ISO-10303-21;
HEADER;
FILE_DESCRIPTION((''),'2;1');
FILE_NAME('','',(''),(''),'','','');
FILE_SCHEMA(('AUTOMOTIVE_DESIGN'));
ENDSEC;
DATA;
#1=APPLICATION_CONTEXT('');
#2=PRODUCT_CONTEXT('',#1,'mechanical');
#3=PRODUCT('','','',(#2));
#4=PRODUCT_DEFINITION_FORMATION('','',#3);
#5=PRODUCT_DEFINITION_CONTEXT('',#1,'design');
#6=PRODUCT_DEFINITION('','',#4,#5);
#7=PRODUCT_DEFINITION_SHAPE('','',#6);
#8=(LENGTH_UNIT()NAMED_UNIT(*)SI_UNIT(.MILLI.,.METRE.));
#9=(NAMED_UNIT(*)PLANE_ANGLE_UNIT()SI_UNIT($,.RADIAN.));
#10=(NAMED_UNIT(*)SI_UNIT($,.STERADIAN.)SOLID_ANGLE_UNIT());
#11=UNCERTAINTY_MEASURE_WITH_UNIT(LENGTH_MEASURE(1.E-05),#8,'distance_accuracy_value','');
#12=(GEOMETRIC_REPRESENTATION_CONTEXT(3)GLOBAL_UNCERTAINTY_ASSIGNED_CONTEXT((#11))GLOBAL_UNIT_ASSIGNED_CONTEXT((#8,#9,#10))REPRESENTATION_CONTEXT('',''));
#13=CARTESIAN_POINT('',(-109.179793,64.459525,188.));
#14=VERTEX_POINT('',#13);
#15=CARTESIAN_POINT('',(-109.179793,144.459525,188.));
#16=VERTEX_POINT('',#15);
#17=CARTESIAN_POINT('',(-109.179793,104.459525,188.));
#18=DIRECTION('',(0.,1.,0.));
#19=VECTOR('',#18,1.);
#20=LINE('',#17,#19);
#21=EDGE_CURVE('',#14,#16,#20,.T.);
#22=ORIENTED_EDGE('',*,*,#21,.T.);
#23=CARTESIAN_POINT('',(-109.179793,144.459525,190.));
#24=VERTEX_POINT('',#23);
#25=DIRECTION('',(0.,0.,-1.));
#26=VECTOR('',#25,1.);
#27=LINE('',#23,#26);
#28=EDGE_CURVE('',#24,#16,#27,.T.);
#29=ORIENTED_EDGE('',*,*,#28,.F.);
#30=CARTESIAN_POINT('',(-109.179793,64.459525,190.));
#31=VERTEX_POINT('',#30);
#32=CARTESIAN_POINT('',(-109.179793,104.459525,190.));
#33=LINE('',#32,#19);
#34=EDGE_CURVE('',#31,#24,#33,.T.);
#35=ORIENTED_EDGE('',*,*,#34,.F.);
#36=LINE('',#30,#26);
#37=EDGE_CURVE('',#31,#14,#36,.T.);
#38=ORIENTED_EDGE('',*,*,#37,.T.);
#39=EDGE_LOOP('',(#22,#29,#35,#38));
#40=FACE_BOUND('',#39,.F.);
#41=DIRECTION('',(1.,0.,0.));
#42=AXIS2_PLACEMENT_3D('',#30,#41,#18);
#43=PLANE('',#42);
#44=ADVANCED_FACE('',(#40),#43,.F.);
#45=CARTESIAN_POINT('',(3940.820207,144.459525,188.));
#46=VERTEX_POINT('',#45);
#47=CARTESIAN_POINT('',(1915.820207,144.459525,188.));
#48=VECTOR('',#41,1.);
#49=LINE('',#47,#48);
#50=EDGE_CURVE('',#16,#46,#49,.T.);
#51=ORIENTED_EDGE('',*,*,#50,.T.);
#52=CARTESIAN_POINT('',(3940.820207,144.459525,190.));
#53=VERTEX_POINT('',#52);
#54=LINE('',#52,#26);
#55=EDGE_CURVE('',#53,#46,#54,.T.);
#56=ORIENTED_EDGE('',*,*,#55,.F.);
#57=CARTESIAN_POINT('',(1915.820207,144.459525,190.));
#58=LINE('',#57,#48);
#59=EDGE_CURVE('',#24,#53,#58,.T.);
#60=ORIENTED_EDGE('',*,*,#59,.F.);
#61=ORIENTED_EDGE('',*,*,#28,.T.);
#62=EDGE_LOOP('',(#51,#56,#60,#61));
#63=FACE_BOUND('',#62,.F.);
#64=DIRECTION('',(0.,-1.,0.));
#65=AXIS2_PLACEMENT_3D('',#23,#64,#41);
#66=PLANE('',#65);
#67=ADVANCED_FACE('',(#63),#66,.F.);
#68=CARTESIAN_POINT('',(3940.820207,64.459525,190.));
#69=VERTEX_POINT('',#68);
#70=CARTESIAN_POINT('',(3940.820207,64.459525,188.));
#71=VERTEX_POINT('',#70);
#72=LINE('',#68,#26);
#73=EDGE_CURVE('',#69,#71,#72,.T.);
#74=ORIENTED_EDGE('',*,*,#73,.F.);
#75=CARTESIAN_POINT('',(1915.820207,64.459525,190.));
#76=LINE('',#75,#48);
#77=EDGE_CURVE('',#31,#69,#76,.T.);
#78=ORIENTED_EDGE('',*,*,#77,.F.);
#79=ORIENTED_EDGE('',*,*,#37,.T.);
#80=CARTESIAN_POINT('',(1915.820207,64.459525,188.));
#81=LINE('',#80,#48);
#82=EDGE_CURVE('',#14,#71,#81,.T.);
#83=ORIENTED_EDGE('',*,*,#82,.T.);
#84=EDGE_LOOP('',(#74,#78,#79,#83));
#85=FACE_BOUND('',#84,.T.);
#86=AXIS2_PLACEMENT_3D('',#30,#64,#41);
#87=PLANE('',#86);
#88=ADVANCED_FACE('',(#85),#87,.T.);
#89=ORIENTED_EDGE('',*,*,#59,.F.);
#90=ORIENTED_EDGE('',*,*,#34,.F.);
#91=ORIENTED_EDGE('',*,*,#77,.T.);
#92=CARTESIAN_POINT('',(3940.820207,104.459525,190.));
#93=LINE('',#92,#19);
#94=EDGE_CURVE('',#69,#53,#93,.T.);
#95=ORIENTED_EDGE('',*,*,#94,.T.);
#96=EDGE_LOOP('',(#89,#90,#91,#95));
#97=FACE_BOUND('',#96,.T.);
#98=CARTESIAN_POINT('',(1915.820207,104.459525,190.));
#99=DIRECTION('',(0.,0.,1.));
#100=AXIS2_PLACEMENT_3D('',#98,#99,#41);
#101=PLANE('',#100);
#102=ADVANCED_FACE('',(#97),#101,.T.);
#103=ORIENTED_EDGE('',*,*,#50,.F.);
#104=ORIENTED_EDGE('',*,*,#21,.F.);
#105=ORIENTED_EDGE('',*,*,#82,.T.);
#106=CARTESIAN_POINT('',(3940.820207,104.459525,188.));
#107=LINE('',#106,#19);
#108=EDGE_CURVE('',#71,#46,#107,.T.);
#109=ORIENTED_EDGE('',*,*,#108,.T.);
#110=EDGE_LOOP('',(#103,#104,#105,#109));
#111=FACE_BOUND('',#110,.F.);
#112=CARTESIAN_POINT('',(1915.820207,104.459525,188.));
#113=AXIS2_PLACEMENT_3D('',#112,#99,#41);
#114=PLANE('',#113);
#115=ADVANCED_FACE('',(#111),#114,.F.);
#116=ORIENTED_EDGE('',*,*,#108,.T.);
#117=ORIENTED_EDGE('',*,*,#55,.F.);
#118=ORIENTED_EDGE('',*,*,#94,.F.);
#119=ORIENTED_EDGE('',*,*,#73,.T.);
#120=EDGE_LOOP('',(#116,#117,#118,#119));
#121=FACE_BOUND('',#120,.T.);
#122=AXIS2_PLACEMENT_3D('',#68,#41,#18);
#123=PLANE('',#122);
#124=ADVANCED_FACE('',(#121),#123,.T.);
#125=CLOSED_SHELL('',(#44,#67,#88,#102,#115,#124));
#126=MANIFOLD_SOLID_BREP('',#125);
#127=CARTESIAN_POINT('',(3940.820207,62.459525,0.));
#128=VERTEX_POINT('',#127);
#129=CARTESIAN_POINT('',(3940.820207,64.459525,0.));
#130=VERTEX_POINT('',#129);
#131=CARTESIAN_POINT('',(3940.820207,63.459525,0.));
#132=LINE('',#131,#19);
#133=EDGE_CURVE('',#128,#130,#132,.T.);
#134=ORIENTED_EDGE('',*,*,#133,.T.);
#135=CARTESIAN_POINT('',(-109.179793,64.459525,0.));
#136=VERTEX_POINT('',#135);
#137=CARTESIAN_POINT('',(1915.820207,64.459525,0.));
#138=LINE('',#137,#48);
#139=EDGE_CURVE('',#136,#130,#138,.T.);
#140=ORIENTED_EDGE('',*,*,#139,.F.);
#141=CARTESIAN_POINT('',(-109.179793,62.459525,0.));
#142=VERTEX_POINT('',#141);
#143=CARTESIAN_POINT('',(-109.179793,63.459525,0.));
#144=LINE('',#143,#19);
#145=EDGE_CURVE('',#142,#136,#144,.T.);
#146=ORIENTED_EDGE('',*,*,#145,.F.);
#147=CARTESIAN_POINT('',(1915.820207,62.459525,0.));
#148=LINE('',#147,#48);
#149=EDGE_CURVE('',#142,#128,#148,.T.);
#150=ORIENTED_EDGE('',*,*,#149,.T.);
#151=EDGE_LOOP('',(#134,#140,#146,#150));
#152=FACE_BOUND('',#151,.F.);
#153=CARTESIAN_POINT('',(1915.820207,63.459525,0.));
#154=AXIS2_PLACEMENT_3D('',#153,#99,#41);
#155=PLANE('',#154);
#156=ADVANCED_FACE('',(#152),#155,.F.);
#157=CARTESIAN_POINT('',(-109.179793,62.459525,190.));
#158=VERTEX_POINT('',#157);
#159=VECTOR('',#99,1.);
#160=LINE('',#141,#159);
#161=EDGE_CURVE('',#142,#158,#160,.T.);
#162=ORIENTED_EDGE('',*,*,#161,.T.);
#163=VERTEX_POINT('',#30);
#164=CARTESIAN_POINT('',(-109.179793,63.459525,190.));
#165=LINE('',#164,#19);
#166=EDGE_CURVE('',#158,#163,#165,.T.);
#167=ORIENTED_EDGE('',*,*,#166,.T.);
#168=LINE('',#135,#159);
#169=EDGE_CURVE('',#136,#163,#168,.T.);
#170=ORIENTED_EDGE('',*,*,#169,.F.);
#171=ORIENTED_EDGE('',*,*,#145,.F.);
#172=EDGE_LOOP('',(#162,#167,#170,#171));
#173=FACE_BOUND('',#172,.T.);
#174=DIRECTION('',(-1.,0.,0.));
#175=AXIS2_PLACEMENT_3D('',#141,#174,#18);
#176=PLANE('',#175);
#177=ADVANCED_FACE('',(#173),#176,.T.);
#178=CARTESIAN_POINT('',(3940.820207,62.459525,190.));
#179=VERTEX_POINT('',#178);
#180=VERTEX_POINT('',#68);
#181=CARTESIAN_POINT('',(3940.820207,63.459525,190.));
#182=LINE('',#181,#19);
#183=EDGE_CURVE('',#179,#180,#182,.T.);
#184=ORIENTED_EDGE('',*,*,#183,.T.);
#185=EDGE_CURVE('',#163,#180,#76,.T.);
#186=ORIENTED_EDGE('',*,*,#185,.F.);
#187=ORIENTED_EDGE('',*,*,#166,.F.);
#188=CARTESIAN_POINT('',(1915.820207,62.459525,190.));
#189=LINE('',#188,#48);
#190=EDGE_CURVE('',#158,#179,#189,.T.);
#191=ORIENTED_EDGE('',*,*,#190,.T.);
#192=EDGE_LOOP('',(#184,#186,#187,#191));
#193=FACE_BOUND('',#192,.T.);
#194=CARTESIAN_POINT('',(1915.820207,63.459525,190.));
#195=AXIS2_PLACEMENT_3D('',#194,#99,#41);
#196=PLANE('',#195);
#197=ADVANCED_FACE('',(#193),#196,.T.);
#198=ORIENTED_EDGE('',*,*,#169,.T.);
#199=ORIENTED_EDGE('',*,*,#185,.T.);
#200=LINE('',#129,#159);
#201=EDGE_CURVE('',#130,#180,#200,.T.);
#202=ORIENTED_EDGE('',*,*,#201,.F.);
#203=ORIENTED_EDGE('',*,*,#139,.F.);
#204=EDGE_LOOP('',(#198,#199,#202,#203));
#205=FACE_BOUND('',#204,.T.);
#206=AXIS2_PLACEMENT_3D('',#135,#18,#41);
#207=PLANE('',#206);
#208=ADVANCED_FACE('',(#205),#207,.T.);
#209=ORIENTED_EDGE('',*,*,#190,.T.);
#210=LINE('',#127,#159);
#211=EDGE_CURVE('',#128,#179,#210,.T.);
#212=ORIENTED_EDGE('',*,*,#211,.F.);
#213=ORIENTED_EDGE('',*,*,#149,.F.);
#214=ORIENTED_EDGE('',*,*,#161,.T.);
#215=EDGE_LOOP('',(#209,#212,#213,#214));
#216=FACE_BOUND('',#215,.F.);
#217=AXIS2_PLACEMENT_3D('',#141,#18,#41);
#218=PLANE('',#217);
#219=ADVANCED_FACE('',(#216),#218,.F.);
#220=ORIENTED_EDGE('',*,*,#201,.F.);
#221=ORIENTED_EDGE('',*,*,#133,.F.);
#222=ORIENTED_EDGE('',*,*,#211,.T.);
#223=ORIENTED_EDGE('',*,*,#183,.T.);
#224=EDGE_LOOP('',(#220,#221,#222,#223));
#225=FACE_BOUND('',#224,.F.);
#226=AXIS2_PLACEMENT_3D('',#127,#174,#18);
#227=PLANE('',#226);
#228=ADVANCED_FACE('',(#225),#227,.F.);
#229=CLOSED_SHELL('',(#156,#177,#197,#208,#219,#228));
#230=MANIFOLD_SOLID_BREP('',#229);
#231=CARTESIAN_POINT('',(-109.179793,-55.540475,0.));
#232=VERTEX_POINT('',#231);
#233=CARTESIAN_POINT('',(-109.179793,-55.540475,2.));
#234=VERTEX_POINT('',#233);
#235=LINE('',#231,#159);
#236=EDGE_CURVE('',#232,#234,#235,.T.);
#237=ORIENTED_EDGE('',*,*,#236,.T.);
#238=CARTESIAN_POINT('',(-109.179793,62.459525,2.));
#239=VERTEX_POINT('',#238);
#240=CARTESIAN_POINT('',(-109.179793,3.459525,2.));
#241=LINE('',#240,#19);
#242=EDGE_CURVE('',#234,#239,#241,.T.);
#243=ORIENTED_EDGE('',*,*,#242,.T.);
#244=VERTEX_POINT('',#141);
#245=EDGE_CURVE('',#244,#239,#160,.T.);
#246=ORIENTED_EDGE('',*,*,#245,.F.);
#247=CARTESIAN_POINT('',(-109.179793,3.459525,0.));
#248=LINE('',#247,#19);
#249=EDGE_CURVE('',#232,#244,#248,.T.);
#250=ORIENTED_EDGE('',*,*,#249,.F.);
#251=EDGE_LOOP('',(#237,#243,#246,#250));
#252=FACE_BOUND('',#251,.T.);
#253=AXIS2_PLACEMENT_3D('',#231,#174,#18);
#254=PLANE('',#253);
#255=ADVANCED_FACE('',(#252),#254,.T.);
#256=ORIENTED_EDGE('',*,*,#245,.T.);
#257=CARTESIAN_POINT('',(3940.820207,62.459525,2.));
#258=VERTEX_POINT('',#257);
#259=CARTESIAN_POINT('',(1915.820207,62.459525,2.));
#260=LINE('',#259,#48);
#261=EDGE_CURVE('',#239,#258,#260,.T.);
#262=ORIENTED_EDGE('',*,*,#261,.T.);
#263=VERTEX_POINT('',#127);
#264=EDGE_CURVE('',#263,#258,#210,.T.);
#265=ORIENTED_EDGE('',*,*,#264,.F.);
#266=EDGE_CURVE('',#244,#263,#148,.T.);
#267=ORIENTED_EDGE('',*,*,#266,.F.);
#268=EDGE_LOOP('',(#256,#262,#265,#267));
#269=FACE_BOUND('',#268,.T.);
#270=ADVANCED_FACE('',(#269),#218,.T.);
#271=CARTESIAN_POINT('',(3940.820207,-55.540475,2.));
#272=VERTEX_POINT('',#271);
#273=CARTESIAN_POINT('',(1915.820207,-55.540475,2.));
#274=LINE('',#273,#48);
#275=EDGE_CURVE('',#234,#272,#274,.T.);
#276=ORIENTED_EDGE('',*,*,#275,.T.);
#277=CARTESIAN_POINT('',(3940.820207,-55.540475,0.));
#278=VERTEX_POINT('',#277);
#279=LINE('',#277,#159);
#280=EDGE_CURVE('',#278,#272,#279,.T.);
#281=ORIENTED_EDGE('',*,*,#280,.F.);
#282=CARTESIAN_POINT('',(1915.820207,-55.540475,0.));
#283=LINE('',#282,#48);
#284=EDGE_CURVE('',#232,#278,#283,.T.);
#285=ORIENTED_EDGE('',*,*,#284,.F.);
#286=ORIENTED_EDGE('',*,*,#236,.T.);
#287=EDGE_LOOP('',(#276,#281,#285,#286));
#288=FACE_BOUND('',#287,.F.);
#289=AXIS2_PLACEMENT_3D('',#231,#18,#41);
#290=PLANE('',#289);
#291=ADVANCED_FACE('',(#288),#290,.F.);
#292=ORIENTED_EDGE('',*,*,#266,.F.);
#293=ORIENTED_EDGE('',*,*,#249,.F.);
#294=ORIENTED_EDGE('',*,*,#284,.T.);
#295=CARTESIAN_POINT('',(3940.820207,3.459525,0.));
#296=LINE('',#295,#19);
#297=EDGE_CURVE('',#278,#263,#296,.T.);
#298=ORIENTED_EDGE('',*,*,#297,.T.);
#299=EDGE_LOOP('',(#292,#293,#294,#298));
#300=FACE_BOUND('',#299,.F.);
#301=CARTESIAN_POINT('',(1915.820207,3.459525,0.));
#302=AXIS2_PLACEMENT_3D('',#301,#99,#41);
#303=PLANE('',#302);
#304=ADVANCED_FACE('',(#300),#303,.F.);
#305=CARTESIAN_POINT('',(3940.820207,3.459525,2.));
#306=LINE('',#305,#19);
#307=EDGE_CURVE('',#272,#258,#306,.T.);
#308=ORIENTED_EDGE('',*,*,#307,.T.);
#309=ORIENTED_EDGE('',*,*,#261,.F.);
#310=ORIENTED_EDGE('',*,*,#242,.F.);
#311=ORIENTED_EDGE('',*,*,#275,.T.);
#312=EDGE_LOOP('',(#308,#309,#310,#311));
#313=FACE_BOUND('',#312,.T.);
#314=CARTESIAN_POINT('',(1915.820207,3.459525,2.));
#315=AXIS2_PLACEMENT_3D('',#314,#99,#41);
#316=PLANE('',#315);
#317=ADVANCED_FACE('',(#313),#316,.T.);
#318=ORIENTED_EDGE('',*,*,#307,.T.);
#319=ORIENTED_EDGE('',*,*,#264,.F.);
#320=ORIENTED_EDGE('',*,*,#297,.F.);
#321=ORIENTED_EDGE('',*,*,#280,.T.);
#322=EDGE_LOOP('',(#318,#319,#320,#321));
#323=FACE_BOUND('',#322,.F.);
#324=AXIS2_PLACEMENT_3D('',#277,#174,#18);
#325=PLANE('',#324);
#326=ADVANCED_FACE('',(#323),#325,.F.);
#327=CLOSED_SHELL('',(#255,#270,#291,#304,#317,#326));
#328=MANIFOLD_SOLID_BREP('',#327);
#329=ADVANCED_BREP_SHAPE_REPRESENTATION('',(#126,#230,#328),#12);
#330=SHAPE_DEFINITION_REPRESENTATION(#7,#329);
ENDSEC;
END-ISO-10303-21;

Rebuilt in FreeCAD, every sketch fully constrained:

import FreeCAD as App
import Part
import Sketcher


def add_polygon(sketch, points):
    """Adds a closed chain of lines whose ends are joined by coincident constraints."""
    first, n = sketch.GeometryCount, len(points)
    for a, b in zip(points, points[1:] + points[:1]):
        sketch.addGeometry(Part.LineSegment(App.Vector(*a, 0), App.Vector(*b, 0)), False)
    for i in range(n):
        sketch.addConstraint(Sketcher.Constraint("Coincident", first + i, 2, first + (i + 1) % n, 1))

doc = App.newDocument("Part")
body = doc.addObject("PartDesign::Body", "Body")

# Sketch on XY plane
sketch1 = doc.addObject("Sketcher::SketchObject", "Sketch")
body.addObject(sketch1)
sketch1.AttachmentSupport = (doc.XY_Plane, [""])
sketch1.MapMode = "FlatFace"
add_polygon(sketch1, [(-109, 62), (-109, -56), (3941, -56), (3941, 62)])  # lines 0-3
sketch1.addConstraint([
    Sketcher.Constraint("Vertical", 0),
    Sketcher.Constraint("Horizontal", 1),
    Sketcher.Constraint("Vertical", 2),
    Sketcher.Constraint("Horizontal", 3),
    Sketcher.Constraint("DistanceX", 1, 1, 1, 2, 4050.0),
    Sketcher.Constraint("DistanceY", 0, 2, 0, 1, 118.0),
    Sketcher.Constraint("DistanceX", 0, 2, -1, 1, 109.179793),
    Sketcher.Constraint("DistanceY", 0, 2, -1, 1, 55.540475),
])
pad1 = doc.addObject("PartDesign::Pad", "Pad")
body.addObject(pad1)
pad1.Profile = sketch1
pad1.Length = 2
body2 = doc.addObject("PartDesign::Body", "Body001")

# Sketch on XY plane
sketch2 = doc.addObject("Sketcher::SketchObject", "Sketch001")
body2.addObject(sketch2)
sketch2.AttachmentSupport = (doc.getObject("XY_Plane001"), [""])
sketch2.MapMode = "FlatFace"
add_polygon(sketch2, [(-109.2, 64.5), (-109.2, 62.5), (3940.8, 62.5), (3940.8, 64.5)])  # lines 0-3
sketch2.addConstraint([
    Sketcher.Constraint("Vertical", 0),
    Sketcher.Constraint("Horizontal", 1),
    Sketcher.Constraint("Vertical", 2),
    Sketcher.Constraint("Horizontal", 3),
    Sketcher.Constraint("DistanceX", 1, 1, 1, 2, 4050.0),
    Sketcher.Constraint("DistanceY", 0, 2, 0, 1, 2.0),
    Sketcher.Constraint("DistanceX", 0, 2, -1, 1, 109.179793),
    Sketcher.Constraint("DistanceY", -1, 1, 0, 2, 62.459525),
])
pad2 = doc.addObject("PartDesign::Pad", "Pad001")
body2.addObject(pad2)
pad2.Profile = sketch2
pad2.Length = 190
body3 = doc.addObject("PartDesign::Body", "Body002")

# Sketch on XY plane
sketch3 = doc.addObject("Sketcher::SketchObject", "Sketch002")
body3.addObject(sketch3)
sketch3.AttachmentSupport = (doc.getObject("XY_Plane002"), [""])
sketch3.MapMode = "FlatFace"
sketch3.AttachmentOffset = App.Placement(App.Vector(0, 0, 190), App.Rotation())
add_polygon(sketch3, [(-109, 144), (-109, 64), (3941, 64), (3941, 144)])  # lines 0-3
sketch3.addConstraint([
    Sketcher.Constraint("Vertical", 0),
    Sketcher.Constraint("Horizontal", 1),
    Sketcher.Constraint("Vertical", 2),
    Sketcher.Constraint("Horizontal", 3),
    Sketcher.Constraint("DistanceX", 1, 1, 1, 2, 4050.0),
    Sketcher.Constraint("DistanceY", 0, 2, 0, 1, 80.0),
    Sketcher.Constraint("DistanceX", 0, 2, -1, 1, 109.179793),
    Sketcher.Constraint("DistanceY", -1, 1, 0, 2, 64.459525),
])
pad3 = doc.addObject("PartDesign::Pad", "Pad002")
body3.addObject(pad3)
pad3.Profile = sketch3
pad3.Length = 2
pad3.Reversed = True

doc.recompute()
